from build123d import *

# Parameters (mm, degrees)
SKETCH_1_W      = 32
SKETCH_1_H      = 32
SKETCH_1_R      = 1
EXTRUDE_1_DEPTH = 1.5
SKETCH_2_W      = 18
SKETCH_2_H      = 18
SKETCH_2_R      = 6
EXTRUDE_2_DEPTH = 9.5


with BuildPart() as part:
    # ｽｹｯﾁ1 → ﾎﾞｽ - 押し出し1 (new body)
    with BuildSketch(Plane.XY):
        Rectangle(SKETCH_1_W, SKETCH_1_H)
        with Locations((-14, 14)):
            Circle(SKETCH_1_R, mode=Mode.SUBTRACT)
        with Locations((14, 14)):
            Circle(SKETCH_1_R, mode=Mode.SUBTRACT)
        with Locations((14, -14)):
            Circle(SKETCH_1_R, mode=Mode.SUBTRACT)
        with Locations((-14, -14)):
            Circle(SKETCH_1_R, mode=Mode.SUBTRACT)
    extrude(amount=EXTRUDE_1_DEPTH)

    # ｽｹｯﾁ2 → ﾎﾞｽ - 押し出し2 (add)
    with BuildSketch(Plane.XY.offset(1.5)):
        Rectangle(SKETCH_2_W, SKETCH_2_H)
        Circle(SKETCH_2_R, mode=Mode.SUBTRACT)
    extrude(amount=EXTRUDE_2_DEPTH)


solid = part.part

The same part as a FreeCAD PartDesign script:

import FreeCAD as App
import Part
import Sketcher
from FreeCAD import Vector
Q = App.Units.Quantity


def add_polygon(sketch, points):
    """Adds a closed chain of lines whose ends are joined by coincident constraints."""
    first, n = sketch.GeometryCount, len(points)
    for a, b in zip(points, points[1:] + points[:1]):
        sketch.addGeometry(Part.LineSegment(App.Vector(*a, 0), App.Vector(*b, 0)), False)
    for i in range(n):
        sketch.addConstraint(Sketcher.Constraint("Coincident", first + i, 2, first + (i + 1) % n, 1))

doc = App.newDocument("Part")
body = doc.addObject("PartDesign::Body", "Body")

sketch1 = body.newObject("Sketcher::SketchObject", "Sketch")
sketch1.AttachmentSupport = (doc.getObject("XY_Plane"), [""])
sketch1.MapMode = "FlatFace"
add_polygon(sketch1, [(-16, 16), (-16, -16), (16, -16), (16, 16)])
sketch1.addGeometry(Part.Circle(Vector(-14, -14, 0), Vector(0, 0, 1), 1), False)
sketch1.addGeometry(Part.Circle(Vector(14, -14, 0), Vector(0, 0, 1), 1), False)
sketch1.addGeometry(Part.Circle(Vector(-14, 14, 0), Vector(0, 0, 1), 1), False)
sketch1.addGeometry(Part.Circle(Vector(14, 14, 0), Vector(0, 0, 1), 1), False)
sketch1.addConstraint([
    Sketcher.Constraint("Vertical", 0),
    Sketcher.Constraint("Horizontal", 1),
    Sketcher.Constraint("Vertical", 2),
    Sketcher.Constraint("Horizontal", 3),
    Sketcher.Constraint("Equal", 4, 5),
    Sketcher.Constraint("Equal", 5, 6),
    Sketcher.Constraint("Equal", 6, 7),
    Sketcher.Constraint("Symmetric", 5, 3, 6, 3, -1, 1),
    Sketcher.Constraint("Symmetric", 4, 3, 7, 3, -1, 1),
    Sketcher.Constraint("Symmetric", 0, 2, 2, 2, -1, 1),
    Sketcher.Constraint("Symmetric", 4, 3, 5, 3, -2),
    Sketcher.Constraint("Equal", 3, 0),
    Sketcher.Constraint("Diameter", 4, Q("2 mm")),
    Sketcher.Constraint("DistanceX", 1, 1, 1, 2, Q("32 mm")),
    Sketcher.Constraint("DistanceX", 4, 3, -1, 1, Q("14 mm")),
    Sketcher.Constraint("DistanceY", 4, 3, -1, 1, Q("14 mm")),
])
pad1 = body.newObject("PartDesign::Pad", "Pad")
pad1.Profile = sketch1
pad1.Length = 1.5

sketch2 = body.newObject("Sketcher::SketchObject", "Sketch001")
sketch2.AttachmentSupport = (doc.getObject("XY_Plane"), [""])
sketch2.MapMode = "FlatFace"
sketch2.AttachmentOffset = App.Placement(Vector(0, 0, 1.5), App.Rotation())
add_polygon(sketch2, [(-9, 9), (-9, -9), (9, -9), (9, 9)])
sketch2.addGeometry(Part.Circle(Vector(0, 0, 0), Vector(0, 0, 1), 6), False)
sketch2.addConstraint([
    Sketcher.Constraint("Vertical", 0),
    Sketcher.Constraint("Horizontal", 1),
    Sketcher.Constraint("Vertical", 2),
    Sketcher.Constraint("Horizontal", 3),
    Sketcher.Constraint("Coincident", 4, 3, -1, 1),
    Sketcher.Constraint("Symmetric", 0, 2, 2, 2, -1, 1),
    Sketcher.Constraint("Equal", 3, 0),
    Sketcher.Constraint("Diameter", 4, Q("12 mm")),
    Sketcher.Constraint("DistanceX", 1, 1, 1, 2, Q("18 mm")),
])
pad2 = body.newObject("PartDesign::Pad", "Pad001")
pad2.Profile = sketch2
pad2.Length = 9.5

doc.recompute()
